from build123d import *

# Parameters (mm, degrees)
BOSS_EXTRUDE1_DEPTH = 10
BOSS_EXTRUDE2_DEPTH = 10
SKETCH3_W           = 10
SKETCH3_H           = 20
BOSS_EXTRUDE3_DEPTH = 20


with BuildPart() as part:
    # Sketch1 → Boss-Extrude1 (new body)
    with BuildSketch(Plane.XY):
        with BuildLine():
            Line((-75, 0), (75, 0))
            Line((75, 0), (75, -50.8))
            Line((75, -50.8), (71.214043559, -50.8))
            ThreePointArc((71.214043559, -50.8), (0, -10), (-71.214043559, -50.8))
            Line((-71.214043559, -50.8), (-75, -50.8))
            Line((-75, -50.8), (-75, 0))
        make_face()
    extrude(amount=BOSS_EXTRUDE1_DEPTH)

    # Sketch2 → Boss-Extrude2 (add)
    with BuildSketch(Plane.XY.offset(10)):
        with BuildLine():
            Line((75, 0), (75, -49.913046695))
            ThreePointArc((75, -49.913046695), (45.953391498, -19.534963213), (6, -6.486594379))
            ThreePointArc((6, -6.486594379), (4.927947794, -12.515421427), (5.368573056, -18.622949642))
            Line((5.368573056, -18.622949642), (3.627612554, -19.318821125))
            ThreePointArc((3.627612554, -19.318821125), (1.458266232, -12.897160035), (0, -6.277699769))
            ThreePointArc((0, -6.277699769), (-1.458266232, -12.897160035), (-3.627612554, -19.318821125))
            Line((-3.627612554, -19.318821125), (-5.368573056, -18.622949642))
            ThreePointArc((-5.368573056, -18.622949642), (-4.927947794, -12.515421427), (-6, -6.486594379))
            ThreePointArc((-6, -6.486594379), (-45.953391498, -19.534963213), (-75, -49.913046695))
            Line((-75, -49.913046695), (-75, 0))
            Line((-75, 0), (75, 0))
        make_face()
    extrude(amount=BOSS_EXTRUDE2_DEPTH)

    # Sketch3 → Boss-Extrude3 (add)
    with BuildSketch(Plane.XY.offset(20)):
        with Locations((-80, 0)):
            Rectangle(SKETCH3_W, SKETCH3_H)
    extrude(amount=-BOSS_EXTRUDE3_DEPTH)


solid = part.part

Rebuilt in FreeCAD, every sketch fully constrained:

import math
import FreeCAD as App
import Part
import Sketcher

V = App.Vector
Q = App.Units.Quantity

doc = App.newDocument("Part")
body = doc.addObject("PartDesign::Body", "Body")

sketch1 = body.newObject("Sketcher::SketchObject", "Sketch")
sketch1.AttachmentSupport = (doc.getObject("XY_Plane"), [""])
sketch1.MapMode = "FlatFace"
sketch1.addGeometry(Part.LineSegment(V(75, 0, 0), V(-75, 0, 0)), False)
sketch1.addGeometry(Part.LineSegment(V(-75, 0, 0), V(-75, -50.8, 0)), False)
sketch1.addGeometry(Part.LineSegment(V(-75, -50.8, 0), V(-71.2, -50.8, 0)), False)
sketch1.addGeometry(Part.ArcOfCircle(Part.Circle(V(0, -92.5, 0), V(0, 0, 1), 82.5), math.radians(30), math.radians(150)), False)
sketch1.addGeometry(Part.LineSegment(V(71.2, -50.8, 0), V(75, -50.8, 0)), False)
sketch1.addGeometry(Part.LineSegment(V(75, -50.8, 0), V(75, 0, 0)), False)
sketch1.addConstraint(Sketcher.Constraint("Coincident", 0, 2, 1, 1))
sketch1.addConstraint(Sketcher.Constraint("Coincident", 1, 2, 2, 1))
sketch1.addConstraint(Sketcher.Constraint("Coincident", 2, 2, 3, 2))
sketch1.addConstraint(Sketcher.Constraint("Coincident", 3, 1, 4, 1))
sketch1.addConstraint(Sketcher.Constraint("Coincident", 4, 2, 5, 1))
sketch1.addConstraint(Sketcher.Constraint("Coincident", 5, 2, 0, 1))
sketch1.addConstraint(Sketcher.Constraint("Horizontal", 0))
sketch1.addConstraint(Sketcher.Constraint("Vertical", 1))
sketch1.addConstraint(Sketcher.Constraint("Horizontal", 2))
sketch1.addConstraint(Sketcher.Constraint("Horizontal", 4))
sketch1.addConstraint(Sketcher.Constraint("Vertical", 5))
sketch1.addConstraint(Sketcher.Constraint("Symmetric", 0, 2, 5, 2, -1, 1))
sketch1.addConstraint(Sketcher.Constraint("Symmetric", 2, 2, 3, 1, -2))
sketch1.addConstraint(Sketcher.Constraint("DistanceX", 0, 2, 0, 1, Q("150 mm")))
sketch1.addConstraint(Sketcher.Constraint("Radius", 3, Q("82.55 mm")))
sketch1.addConstraint(Sketcher.Constraint("DistanceY", 1, 2, 1, 1, Q("50.8 mm")))
sketch1.addConstraint(Sketcher.Constraint("DistanceY", 3, 3, -1, 1, Q("92.55 mm")))
pad1 = body.newObject("PartDesign::Pad", "Pad")
pad1.Profile = sketch1
pad1.Length = 10

sketch2 = body.newObject("Sketcher::SketchObject", "Sketch001")
sketch2.AttachmentSupport = (doc.getObject("XY_Plane"), [""])
sketch2.MapMode = "FlatFace"
sketch2.AttachmentOffset = App.Placement(V(0, 0, 10), App.Rotation())
sketch2.addGeometry(Part.LineSegment(V(75, -49.9, 0), V(75, 0, 0)), False)
sketch2.addGeometry(Part.LineSegment(V(75, 0, 0), V(-75, 0, 0)), False)
sketch2.addGeometry(Part.LineSegment(V(-75, 0, 0), V(-75, -49.9, 0)), False)
sketch2.addGeometry(Part.ArcOfCircle(Part.Circle(V(0, -92.5, 0), V(0, 0, 1), 86.3), math.radians(94), math.radians(150)), False)
sketch2.addGeometry(Part.ArcOfCircle(Part.Circle(V(-29.6, -13.8, 0), V(0, 0, 1), 24.8), math.radians(-11), math.radians(17)), False)
sketch2.addGeometry(Part.LineSegment(V(-5.4, -18.6, 0), V(-3.6, -19.3, 0)), False)
sketch2.addGeometry(Part.ArcOfCircle(Part.Circle(V(-61.4, 3.8, 0), V(0, 0, 1), 62.2), math.radians(-21.79), math.radians(-9.3)), False)
sketch2.addGeometry(Part.ArcOfCircle(Part.Circle(V(61.4, 3.8, 0), V(0, 0, 1), 62.2), math.radians(-170.7), math.radians(-158.21)), False)
sketch2.addGeometry(Part.LineSegment(V(3.6, -19.3, 0), V(5.4, -18.6, 0)), False)
sketch2.addGeometry(Part.ArcOfCircle(Part.Circle(V(29.6, -13.8, 0), V(0, 0, 1), 24.8), math.radians(163), math.radians(191)), False)
sketch2.addGeometry(Part.ArcOfCircle(Part.Circle(V(0, -92.5, 0), V(0, 0, 1), 86.3), math.radians(30), math.radians(86)), False)
sketch2.addConstraint(Sketcher.Constraint("Coincident", 0, 2, 1, 1))
sketch2.addConstraint(Sketcher.Constraint("Coincident", 1, 2, 2, 1))
sketch2.addConstraint(Sketcher.Constraint("Coincident", 2, 2, 3, 2))
sketch2.addConstraint(Sketcher.Constraint("Coincident", 3, 1, 4, 2))
sketch2.addConstraint(Sketcher.Constraint("Coincident", 4, 1, 5, 1))
sketch2.addConstraint(Sketcher.Constraint("Coincident", 5, 2, 6, 1))
sketch2.addConstraint(Sketcher.Constraint("Coincident", 6, 2, 7, 1))
sketch2.addConstraint(Sketcher.Constraint("Coincident", 7, 2, 8, 1))
sketch2.addConstraint(Sketcher.Constraint("Coincident", 8, 2, 9, 2))
sketch2.addConstraint(Sketcher.Constraint("Coincident", 9, 1, 10, 2))
sketch2.addConstraint(Sketcher.Constraint("Coincident", 10, 1, 0, 1))
sketch2.addConstraint(Sketcher.Constraint("Vertical", 0))
sketch2.addConstraint(Sketcher.Constraint("Horizontal", 1))
sketch2.addConstraint(Sketcher.Constraint("Vertical", 2))
sketch2.addConstraint(Sketcher.Constraint("Coincident", 10, 3, 3, 3))
sketch2.addConstraint(Sketcher.Constraint("Equal", 6, 7))
sketch2.addConstraint(Sketcher.Constraint("Equal", 4, 9))
sketch2.addConstraint(Sketcher.Constraint("Equal", 3, 10))
sketch2.addConstraint(Sketcher.Constraint("Symmetric", 0, 2, 1, 2, -1, 1))
sketch2.addConstraint(Sketcher.Constraint("Symmetric", 6, 3, 7, 3, -2))
sketch2.addConstraint(Sketcher.Constraint("Symmetric", 4, 3, 9, 3, -2))
sketch2.addConstraint(Sketcher.Constraint("PointOnObject", 3, 3, -2))
sketch2.addConstraint(Sketcher.Constraint("Horizontal", 5, 2, 7, 2))
sketch2.addConstraint(Sketcher.Constraint("Horizontal", 4, 1, 8, 2))
sketch2.addConstraint(Sketcher.Constraint("DistanceX", 1, 2, 1, 1, Q("150 mm")))
sketch2.addConstraint(Sketcher.Constraint("DistanceX", 3, 1, -1, 1, Q("6 mm")))
sketch2.addConstraint(Sketcher.Constraint("Radius", 3, Q("86.2723 mm")))
sketch2.addConstraint(Sketcher.Constraint("DistanceY", 3, 3, -1, 1, Q("92.55 mm")))
sketch2.addConstraint(Sketcher.Constraint("Radius", 4, Q("24.754388 mm")))
sketch2.addConstraint(Sketcher.Constraint("Radius", 6, Q("62.24787 mm")))
sketch2.addConstraint(Sketcher.Constraint("DistanceY", 4, 3, 3, 1, Q("7.315002 mm")))
sketch2.addConstraint(Sketcher.Constraint("DistanceY", 6, 2, -1, 1, Q("6.2777 mm")))
sketch2.addConstraint(Sketcher.Constraint("Distance", 5, Q("1.874881 mm")))
sketch2.addConstraint(Sketcher.Constraint("DistanceY", -1, 1, 6, 3, Q("3.784782 mm")))
sketch2.addConstraint(Sketcher.Constraint("DistanceY", 5, 2, -1, 1, Q("19.318821 mm")))
pad2 = body.newObject("PartDesign::Pad", "Pad001")
pad2.Profile = sketch2
pad2.Length = 10

sketch3 = body.newObject("Sketcher::SketchObject", "Sketch002")
sketch3.AttachmentSupport = (doc.getObject("XY_Plane"), [""])
sketch3.MapMode = "FlatFace"
sketch3.AttachmentOffset = App.Placement(V(0, 0, 20), App.Rotation())
sketch3.addGeometry(Part.LineSegment(V(-85, 10, 0), V(-85, -10, 0)), False)
sketch3.addGeometry(Part.LineSegment(V(-85, -10, 0), V(-75, -10, 0)), False)
sketch3.addGeometry(Part.LineSegment(V(-75, -10, 0), V(-75, 10, 0)), False)
sketch3.addGeometry(Part.LineSegment(V(-75, 10, 0), V(-85, 10, 0)), False)
sketch3.addConstraint(Sketcher.Constraint("Coincident", 0, 2, 1, 1))
sketch3.addConstraint(Sketcher.Constraint("Coincident", 1, 2, 2, 1))
sketch3.addConstraint(Sketcher.Constraint("Coincident", 2, 2, 3, 1))
sketch3.addConstraint(Sketcher.Constraint("Coincident", 3, 2, 0, 1))
sketch3.addConstraint(Sketcher.Constraint("Vertical", 0))
sketch3.addConstraint(Sketcher.Constraint("Horizontal", 1))
sketch3.addConstraint(Sketcher.Constraint("Vertical", 2))
sketch3.addConstraint(Sketcher.Constraint("Horizontal", 3))
sketch3.addConstraint(Sketcher.Constraint("DistanceX", 1, 1, 1, 2, Q("10 mm")))
sketch3.addConstraint(Sketcher.Constraint("DistanceY", 0, 2, 0, 1, Q("20 mm")))
sketch3.addConstraint(Sketcher.Constraint("DistanceX", 0, 2, -1, 1, Q("85 mm")))
sketch3.addConstraint(Sketcher.Constraint("DistanceY", 0, 2, -1, 1, Q("10 mm")))
pad3 = body.newObject("PartDesign::Pad", "Pad002")
pad3.Profile = sketch3
pad3.Length = 20
pad3.Reversed = True

doc.recompute()
